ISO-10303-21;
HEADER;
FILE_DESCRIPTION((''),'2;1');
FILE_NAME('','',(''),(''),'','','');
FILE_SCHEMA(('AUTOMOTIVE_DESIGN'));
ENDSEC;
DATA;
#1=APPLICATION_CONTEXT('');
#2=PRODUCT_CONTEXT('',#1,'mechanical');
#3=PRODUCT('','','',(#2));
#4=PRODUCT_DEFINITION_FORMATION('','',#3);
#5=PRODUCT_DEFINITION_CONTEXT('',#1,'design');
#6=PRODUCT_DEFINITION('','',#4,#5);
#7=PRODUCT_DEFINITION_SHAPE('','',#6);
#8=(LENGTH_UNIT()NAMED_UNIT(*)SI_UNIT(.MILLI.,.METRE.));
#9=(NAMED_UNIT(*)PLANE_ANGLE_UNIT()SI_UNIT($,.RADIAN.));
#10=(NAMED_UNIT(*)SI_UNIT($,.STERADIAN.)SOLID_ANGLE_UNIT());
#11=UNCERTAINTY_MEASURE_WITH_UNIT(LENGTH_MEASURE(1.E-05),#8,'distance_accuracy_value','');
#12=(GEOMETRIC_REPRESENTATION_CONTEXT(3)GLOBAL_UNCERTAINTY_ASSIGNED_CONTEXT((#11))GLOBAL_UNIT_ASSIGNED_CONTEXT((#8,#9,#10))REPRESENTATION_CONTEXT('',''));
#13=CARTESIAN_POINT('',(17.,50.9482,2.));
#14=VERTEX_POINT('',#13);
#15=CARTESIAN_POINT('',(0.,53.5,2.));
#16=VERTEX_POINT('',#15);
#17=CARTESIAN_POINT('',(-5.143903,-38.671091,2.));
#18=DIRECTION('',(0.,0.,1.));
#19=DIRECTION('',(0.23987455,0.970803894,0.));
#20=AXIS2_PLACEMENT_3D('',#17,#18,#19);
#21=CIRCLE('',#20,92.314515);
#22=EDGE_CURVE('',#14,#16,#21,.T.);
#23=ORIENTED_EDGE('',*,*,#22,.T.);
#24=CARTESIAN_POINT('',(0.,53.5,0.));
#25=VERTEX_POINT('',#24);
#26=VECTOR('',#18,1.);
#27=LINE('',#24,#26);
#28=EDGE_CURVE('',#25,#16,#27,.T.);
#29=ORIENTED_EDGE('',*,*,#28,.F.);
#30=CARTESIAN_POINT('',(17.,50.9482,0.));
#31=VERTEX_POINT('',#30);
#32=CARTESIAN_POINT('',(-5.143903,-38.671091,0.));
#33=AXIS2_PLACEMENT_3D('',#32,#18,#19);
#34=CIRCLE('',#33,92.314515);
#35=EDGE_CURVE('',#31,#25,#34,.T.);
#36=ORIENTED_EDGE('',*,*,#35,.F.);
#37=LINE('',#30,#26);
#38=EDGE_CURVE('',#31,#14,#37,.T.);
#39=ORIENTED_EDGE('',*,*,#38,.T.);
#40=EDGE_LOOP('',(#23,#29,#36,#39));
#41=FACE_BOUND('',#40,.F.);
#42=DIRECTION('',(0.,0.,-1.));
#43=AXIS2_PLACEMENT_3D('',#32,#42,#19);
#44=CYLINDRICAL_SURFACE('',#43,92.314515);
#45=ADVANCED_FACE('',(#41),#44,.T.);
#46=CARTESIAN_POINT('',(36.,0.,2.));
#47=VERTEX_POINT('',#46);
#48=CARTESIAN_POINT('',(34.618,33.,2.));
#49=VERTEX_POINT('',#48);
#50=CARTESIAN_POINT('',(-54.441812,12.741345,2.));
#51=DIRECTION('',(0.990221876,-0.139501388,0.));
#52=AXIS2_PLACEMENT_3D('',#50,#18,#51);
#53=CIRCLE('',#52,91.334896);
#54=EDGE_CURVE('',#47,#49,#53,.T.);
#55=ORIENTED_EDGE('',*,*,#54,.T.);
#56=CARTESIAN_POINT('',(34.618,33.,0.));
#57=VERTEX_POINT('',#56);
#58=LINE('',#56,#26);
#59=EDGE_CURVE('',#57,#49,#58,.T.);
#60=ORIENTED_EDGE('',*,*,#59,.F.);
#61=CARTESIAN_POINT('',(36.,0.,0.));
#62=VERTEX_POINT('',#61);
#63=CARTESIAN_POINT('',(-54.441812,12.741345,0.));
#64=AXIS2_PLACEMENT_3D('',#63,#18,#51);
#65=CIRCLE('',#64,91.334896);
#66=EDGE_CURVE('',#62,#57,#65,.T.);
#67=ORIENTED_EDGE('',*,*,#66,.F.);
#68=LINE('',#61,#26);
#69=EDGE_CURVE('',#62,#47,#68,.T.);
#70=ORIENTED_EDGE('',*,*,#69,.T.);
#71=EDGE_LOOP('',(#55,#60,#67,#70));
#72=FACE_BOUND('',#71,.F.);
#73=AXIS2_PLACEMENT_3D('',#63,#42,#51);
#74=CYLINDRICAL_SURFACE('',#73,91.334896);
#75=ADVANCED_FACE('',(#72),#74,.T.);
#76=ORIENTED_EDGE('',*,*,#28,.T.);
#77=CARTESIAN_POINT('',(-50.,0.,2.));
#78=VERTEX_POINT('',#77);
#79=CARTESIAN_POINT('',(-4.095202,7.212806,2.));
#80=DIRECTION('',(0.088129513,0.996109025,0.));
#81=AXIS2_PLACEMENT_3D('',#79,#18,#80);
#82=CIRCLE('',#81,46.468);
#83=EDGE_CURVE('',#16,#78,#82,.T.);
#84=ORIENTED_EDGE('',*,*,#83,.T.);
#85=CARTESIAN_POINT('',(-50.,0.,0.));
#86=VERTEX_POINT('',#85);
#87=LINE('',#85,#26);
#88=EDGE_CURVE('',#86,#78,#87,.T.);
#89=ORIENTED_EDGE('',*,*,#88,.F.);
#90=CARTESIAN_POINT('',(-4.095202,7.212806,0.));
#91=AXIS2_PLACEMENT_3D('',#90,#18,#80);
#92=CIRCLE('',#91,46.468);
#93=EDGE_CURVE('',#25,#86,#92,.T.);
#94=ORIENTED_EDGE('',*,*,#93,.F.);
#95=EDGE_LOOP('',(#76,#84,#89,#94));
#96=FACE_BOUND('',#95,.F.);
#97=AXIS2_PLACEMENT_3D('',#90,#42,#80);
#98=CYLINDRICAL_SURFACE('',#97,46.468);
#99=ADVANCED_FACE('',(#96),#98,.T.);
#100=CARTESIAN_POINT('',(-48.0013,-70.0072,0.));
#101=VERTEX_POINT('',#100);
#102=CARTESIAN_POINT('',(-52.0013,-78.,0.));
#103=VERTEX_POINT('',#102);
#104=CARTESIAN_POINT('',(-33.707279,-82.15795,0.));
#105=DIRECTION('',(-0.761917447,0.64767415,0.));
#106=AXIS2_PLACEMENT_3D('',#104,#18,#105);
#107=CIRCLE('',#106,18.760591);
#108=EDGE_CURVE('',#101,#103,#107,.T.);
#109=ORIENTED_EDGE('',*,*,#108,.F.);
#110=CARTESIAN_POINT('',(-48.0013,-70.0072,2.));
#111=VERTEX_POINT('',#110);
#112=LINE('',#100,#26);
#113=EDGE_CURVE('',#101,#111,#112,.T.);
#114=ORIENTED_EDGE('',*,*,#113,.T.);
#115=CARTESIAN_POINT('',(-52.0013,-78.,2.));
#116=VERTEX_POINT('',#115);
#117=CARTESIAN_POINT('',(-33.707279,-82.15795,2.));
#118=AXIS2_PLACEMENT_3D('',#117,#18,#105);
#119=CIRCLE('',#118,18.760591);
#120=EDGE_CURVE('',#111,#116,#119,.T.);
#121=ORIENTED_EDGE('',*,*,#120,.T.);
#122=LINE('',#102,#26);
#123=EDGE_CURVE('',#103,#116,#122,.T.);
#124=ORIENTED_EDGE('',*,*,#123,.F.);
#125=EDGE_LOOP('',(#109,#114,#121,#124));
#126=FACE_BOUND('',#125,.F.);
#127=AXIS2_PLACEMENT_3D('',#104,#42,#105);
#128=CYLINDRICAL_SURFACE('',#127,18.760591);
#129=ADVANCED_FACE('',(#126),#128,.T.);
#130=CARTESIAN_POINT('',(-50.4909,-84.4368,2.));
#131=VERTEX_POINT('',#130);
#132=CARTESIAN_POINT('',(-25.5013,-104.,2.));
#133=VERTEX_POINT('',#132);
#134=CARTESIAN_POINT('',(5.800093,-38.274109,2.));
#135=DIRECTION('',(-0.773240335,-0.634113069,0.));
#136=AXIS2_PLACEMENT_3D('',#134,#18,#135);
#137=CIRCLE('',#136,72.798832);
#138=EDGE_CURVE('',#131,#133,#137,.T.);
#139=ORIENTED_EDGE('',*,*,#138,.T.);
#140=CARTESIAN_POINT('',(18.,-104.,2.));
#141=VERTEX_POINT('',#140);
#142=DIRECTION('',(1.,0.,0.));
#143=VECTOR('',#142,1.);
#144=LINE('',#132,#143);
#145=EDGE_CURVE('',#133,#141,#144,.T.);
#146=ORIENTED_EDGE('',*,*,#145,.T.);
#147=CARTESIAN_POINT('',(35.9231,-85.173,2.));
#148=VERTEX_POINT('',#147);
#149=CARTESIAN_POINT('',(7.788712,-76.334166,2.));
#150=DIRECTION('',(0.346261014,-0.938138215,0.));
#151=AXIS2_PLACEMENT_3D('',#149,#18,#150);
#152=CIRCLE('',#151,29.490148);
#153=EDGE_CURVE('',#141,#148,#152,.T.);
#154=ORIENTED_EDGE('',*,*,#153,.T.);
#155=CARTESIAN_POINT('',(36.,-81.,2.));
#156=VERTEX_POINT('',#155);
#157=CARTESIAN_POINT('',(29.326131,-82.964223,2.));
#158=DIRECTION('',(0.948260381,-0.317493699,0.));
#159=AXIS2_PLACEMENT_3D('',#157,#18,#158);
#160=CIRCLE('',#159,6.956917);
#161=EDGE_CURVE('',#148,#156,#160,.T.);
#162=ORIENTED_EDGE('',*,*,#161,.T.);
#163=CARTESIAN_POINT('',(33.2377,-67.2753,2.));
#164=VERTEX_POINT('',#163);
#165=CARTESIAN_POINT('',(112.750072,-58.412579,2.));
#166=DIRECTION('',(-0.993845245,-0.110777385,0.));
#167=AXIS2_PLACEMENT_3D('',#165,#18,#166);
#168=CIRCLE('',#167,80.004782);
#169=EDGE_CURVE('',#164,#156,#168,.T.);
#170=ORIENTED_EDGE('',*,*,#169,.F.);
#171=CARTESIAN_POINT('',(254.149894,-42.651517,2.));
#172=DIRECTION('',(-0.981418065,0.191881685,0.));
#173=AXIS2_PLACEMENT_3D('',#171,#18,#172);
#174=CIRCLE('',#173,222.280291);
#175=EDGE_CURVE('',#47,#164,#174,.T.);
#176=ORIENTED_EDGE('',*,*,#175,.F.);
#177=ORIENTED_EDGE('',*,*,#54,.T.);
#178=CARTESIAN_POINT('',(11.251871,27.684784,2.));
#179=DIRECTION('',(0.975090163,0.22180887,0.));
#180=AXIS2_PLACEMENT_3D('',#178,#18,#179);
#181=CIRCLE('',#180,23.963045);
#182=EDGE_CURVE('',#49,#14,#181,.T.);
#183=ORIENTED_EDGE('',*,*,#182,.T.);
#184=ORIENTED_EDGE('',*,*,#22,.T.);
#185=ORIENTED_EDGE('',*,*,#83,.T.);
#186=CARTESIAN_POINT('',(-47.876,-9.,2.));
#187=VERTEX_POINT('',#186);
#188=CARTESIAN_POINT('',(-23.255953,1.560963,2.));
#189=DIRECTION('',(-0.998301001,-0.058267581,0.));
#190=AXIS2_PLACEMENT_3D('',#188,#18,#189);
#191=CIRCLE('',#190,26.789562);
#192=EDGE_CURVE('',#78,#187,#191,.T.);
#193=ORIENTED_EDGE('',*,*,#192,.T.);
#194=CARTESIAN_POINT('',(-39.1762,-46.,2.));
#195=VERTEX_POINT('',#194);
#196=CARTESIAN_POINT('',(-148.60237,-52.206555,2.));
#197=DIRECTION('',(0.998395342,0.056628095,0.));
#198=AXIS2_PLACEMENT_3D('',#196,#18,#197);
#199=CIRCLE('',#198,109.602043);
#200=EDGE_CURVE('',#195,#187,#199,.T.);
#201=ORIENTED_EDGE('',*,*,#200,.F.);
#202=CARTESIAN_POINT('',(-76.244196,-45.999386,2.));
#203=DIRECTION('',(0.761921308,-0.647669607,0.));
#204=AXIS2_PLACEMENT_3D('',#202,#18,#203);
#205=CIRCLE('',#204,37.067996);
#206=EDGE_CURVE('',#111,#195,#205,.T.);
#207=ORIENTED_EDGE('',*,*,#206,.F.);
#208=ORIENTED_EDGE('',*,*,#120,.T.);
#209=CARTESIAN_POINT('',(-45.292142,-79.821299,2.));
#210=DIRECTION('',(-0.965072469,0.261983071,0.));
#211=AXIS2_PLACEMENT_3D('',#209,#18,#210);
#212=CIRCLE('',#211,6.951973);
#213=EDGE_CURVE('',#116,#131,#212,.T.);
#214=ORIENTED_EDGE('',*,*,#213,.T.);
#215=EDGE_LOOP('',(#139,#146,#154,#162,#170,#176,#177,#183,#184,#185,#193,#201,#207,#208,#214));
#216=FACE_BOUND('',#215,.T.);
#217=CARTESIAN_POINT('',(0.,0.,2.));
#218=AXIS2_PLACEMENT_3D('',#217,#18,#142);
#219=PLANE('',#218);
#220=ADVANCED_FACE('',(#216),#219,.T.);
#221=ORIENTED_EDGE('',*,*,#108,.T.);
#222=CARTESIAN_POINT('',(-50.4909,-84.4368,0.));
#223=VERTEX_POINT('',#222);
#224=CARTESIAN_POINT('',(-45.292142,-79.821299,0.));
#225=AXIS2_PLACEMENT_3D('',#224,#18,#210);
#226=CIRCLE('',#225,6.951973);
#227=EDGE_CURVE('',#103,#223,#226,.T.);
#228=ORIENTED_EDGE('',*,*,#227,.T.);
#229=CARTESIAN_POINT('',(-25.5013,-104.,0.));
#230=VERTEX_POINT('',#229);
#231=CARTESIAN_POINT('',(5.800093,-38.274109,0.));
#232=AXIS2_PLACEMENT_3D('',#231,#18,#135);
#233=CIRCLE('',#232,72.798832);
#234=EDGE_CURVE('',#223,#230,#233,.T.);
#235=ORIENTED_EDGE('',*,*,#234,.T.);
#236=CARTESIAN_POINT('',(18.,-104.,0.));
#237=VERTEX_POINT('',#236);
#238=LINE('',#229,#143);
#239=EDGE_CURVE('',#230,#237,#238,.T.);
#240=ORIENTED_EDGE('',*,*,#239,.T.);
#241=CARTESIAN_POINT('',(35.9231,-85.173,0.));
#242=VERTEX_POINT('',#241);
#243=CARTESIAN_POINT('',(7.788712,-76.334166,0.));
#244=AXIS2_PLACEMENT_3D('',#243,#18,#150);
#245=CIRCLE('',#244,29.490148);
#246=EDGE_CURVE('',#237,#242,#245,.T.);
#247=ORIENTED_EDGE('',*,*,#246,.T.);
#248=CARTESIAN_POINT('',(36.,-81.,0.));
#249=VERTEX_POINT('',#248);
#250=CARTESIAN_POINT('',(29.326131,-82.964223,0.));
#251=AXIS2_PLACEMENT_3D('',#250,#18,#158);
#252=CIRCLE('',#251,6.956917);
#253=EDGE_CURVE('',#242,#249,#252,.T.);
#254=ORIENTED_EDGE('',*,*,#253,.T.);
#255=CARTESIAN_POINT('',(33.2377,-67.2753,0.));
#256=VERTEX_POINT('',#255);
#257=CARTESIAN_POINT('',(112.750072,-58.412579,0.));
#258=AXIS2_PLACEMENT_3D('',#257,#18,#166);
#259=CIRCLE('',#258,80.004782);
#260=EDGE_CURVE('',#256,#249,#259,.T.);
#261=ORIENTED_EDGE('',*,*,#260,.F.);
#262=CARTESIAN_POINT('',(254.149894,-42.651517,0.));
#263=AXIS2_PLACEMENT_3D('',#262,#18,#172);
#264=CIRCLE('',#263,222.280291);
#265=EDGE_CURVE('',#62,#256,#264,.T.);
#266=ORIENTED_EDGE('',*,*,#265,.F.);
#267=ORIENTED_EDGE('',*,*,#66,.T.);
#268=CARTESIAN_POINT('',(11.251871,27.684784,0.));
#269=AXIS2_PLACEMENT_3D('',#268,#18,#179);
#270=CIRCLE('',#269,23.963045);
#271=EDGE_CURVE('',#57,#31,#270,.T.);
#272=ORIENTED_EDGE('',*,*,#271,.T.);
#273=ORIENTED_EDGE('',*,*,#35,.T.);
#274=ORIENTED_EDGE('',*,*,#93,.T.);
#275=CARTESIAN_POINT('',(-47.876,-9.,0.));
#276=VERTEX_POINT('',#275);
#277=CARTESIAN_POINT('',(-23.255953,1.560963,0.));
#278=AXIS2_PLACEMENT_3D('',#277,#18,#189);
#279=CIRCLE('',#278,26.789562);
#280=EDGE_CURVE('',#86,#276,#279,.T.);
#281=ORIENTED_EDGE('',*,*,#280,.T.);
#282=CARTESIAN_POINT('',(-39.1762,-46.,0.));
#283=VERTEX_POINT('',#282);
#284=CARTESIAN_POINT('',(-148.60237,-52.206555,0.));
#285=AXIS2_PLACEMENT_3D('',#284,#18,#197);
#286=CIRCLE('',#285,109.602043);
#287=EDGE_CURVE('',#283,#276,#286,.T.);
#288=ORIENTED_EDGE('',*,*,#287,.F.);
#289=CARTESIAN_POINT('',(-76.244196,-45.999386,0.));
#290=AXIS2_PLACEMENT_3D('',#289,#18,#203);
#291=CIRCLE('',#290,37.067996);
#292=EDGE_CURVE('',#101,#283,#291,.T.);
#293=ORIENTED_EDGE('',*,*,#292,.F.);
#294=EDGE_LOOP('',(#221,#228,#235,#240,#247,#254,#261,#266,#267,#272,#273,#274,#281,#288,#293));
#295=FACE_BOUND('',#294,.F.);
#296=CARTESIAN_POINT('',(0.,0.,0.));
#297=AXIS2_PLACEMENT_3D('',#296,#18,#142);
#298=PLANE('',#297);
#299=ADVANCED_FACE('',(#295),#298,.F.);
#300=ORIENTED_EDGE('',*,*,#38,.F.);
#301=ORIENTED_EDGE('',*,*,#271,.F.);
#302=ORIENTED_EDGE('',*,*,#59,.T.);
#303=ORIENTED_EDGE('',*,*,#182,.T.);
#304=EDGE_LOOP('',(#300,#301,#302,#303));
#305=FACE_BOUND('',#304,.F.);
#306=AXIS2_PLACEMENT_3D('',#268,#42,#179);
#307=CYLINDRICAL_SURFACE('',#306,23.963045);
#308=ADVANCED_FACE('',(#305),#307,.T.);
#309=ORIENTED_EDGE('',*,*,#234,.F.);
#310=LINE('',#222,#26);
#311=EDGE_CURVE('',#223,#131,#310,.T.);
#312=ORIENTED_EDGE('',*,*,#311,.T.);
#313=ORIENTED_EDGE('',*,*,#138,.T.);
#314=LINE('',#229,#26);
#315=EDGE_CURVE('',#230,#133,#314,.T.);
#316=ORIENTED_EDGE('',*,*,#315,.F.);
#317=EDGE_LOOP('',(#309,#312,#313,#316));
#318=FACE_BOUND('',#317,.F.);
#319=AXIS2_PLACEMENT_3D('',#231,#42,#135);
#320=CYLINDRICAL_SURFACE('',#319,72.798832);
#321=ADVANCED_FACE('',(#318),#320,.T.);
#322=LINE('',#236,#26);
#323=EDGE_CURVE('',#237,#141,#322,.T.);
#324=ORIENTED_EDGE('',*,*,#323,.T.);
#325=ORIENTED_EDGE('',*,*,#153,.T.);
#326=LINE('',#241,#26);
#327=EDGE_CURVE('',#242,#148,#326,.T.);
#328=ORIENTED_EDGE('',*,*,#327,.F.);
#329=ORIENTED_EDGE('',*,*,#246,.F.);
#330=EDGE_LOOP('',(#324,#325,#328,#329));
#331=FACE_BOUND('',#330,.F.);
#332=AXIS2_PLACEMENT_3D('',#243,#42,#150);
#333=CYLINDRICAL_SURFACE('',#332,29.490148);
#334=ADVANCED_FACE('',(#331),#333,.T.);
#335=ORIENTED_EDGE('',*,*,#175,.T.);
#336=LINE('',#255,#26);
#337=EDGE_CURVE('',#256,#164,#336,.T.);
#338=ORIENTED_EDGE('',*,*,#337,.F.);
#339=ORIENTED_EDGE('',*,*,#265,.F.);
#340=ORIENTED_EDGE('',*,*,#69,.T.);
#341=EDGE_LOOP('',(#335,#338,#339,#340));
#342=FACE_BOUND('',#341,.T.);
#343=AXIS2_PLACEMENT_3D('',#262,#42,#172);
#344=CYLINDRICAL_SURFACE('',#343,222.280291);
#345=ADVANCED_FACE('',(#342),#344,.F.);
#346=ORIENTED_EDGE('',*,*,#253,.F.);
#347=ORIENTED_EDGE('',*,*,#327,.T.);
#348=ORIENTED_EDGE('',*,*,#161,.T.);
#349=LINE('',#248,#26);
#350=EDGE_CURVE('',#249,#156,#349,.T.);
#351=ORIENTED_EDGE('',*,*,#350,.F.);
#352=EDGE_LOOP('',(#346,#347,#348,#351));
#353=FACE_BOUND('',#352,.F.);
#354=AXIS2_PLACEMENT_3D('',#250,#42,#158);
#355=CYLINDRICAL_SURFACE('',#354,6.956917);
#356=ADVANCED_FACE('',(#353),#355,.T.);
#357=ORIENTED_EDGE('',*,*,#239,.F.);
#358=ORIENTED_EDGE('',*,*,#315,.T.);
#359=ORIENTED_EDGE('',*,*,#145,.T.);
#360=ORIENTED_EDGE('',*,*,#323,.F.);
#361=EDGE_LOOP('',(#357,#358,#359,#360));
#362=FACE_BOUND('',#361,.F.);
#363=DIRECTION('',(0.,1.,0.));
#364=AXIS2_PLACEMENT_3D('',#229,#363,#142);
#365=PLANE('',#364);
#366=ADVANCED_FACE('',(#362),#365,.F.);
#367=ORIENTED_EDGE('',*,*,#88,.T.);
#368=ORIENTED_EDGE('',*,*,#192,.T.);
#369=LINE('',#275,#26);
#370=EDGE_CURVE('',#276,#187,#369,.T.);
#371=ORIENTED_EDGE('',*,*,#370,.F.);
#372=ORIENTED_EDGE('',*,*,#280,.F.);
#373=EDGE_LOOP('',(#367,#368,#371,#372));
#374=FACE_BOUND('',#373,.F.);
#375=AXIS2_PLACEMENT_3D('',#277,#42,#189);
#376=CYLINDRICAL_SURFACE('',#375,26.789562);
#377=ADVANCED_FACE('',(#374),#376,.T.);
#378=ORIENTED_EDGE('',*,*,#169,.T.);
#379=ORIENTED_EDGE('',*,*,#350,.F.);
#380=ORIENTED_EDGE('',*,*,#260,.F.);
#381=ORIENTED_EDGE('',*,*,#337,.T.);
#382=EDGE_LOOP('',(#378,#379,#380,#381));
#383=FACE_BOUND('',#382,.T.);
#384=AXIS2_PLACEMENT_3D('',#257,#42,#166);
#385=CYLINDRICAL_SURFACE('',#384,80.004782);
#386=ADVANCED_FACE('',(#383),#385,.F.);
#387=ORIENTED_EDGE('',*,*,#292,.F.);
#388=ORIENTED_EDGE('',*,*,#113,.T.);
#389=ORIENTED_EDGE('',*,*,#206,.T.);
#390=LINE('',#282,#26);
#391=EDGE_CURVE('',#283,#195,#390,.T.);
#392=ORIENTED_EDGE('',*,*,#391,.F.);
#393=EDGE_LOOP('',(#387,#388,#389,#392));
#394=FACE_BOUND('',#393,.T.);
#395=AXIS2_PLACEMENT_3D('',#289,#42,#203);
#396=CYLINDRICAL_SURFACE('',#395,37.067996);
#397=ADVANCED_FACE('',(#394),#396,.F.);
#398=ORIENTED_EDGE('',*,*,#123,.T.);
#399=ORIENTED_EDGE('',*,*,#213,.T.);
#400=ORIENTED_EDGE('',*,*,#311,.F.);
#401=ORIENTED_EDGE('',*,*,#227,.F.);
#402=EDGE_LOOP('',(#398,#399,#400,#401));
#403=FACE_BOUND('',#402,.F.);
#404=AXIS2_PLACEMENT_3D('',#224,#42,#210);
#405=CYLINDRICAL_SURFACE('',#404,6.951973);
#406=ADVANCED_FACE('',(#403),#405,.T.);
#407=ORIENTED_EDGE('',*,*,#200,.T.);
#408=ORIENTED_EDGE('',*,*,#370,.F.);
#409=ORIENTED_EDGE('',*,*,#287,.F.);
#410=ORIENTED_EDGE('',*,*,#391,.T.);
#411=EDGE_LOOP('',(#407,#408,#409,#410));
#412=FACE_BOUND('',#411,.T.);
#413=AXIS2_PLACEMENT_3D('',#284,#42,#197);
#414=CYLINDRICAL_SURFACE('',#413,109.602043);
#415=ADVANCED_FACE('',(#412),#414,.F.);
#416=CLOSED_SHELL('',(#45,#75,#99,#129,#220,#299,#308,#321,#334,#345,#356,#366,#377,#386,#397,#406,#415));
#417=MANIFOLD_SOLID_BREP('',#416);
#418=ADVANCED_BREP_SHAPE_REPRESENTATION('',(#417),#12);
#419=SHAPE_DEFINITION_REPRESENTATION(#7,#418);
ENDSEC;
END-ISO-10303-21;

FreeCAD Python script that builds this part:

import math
import FreeCAD as App
import Part
import Sketcher

V = App.Vector
Q = App.Units.Quantity

doc = App.newDocument("Part")
body = doc.addObject("PartDesign::Body", "Body")

sketch1 = body.newObject("Sketcher::SketchObject", "Sketch")
sketch1.AttachmentSupport = (doc.getObject("XY_Plane"), [""])
sketch1.MapMode = "FlatFace"
sketch1.addGeometry([
    Part.ArcOfCircle(Part.Circle(V(11.3, 27.7, 0), V(0, 0, 1), 24), math.radians(13), math.radians(76)),
    Part.ArcOfCircle(Part.Circle(V(-5.1, -38.7, 0), V(0, 0, 1), 92.3), math.radians(76.12), math.radians(86.81)),
    Part.ArcOfCircle(Part.Circle(V(-4.1, 7.2, 0), V(0, 0, 1), 46.5), math.radians(85), math.radians(189)),
    Part.ArcOfCircle(Part.Circle(V(-23.3, 1.6, 0), V(0, 0, 1), 26.8), math.radians(-176.66), math.radians(-156.78)),
    Part.ArcOfCircle(Part.Circle(V(-148.6, -52.2, 0), V(0, 0, 1), 109.6), math.radians(3.25), math.radians(23.22)),
    Part.ArcOfCircle(Part.Circle(V(-76.2, -46, 0), V(0, 0, 1), 37.1), math.radians(-40), math.radians(0)),
    Part.ArcOfCircle(Part.Circle(V(-33.7, -82.2, 0), V(0, 0, 1), 18.8), math.radians(140), math.radians(167)),
    Part.ArcOfCircle(Part.Circle(V(-45.3, -79.8, 0), V(0, 0, 1), 7), math.radians(165), math.radians(222)),
    Part.ArcOfCircle(Part.Circle(V(5.8, -38.3, 0), V(0, 0, 1), 72.8), math.radians(-141), math.radians(-115)),
    Part.LineSegment(V(-25.5, -104, 0), V(18, -104, 0)),
    Part.ArcOfCircle(Part.Circle(V(7.8, -76.3, 0), V(0, 0, 1), 29.5), math.radians(-70), math.radians(-17)),
    Part.ArcOfCircle(Part.Circle(V(29.3, -83, 0), V(0, 0, 1), 7), math.radians(-19), math.radians(16)),
    Part.ArcOfCircle(Part.Circle(V(112.7, -58.4, 0), V(0, 0, 1), 80), math.radians(-173.64), math.radians(-163.6)),
    Part.ArcOfCircle(Part.Circle(V(254.2, -42.7, 0), V(0, 0, 1), 222.3), math.radians(168.94), math.radians(186.36)),
    Part.ArcOfCircle(Part.Circle(V(-54.4, 12.7, 0), V(0, 0, 1), 91.3), math.radians(-8), math.radians(13)),
], False)
sketch1.addConstraint([
    Sketcher.Constraint("Tangent", 0, 2, 1, 1),
    Sketcher.Constraint("Coincident", 1, 2, 2, 1),
    Sketcher.Constraint("Coincident", 2, 2, 3, 1),
    Sketcher.Constraint("Tangent", 3, 2, 4, 2),
    Sketcher.Constraint("Coincident", 4, 1, 5, 2),
    Sketcher.Constraint("Tangent", 5, 1, 6, 1),
    Sketcher.Constraint("Coincident", 6, 2, 7, 1),
    Sketcher.Constraint("Coincident", 7, 2, 8, 1),
    Sketcher.Constraint("Coincident", 8, 2, 9, 1),
    Sketcher.Constraint("Coincident", 9, 2, 10, 1),
    Sketcher.Constraint("Coincident", 10, 2, 11, 1),
    Sketcher.Constraint("Tangent", 11, 2, 12, 2),
    Sketcher.Constraint("Tangent", 12, 1, 13, 2),
    Sketcher.Constraint("Coincident", 13, 1, 14, 1),
    Sketcher.Constraint("Tangent", 14, 2, 0, 1),
    Sketcher.Constraint("Horizontal", 9),
    Sketcher.Constraint("PointOnObject", 1, 2, -2),
    Sketcher.Constraint("PointOnObject", 2, 2, -1),
    Sketcher.Constraint("PointOnObject", 13, 1, -1),
    Sketcher.Constraint("Vertical", 11, 2, 13, 1),
    Sketcher.Constraint("Radius", 10, Q("29.49 mm")),
    Sketcher.Constraint("DistanceX", -1, 1, 0, 2, Q("17 mm")),
    Sketcher.Constraint("DistanceX", 2, 2, -1, 1, Q("50 mm")),
    Sketcher.Constraint("DistanceY", 3, 2, -1, 1, Q("9 mm")),
    Sketcher.Constraint("DistanceY", 4, 1, -1, 1, Q("46 mm")),
    Sketcher.Constraint("DistanceY", 6, 2, -1, 1, Q("78 mm")),
    Sketcher.Constraint("DistanceY", 8, 2, -1, 1, Q("104 mm")),
    Sketcher.Constraint("DistanceX", -1, 1, 9, 2, Q("18 mm")),
    Sketcher.Constraint("DistanceX", -1, 1, 11, 2, Q("36 mm")),
    Sketcher.Constraint("DistanceY", 11, 2, -1, 1, Q("81 mm")),
    Sketcher.Constraint("DistanceY", -1, 1, 14, 2, Q("33 mm")),
    Sketcher.Constraint("Radius", 0, Q("23.963 mm")),
    Sketcher.Constraint("Radius", 2, Q("46.468 mm")),
    Sketcher.Constraint("Radius", 6, Q("18.761 mm")),
    Sketcher.Constraint("Radius", 7, Q("6.952 mm")),
    Sketcher.Constraint("Radius", 8, Q("72.799 mm")),
    Sketcher.Constraint("Radius", 11, Q("6.957 mm")),
    Sketcher.Constraint("Radius", 12, Q("80.004 mm")),
    Sketcher.Constraint("Radius", 13, Q("222.281 mm")),
    Sketcher.Constraint("Radius", 14, Q("91.334 mm")),
    Sketcher.Constraint("DistanceX", 6, 2, 5, 1, Q("4 mm")),
    Sketcher.Constraint("DistanceY", -1, 1, 1, 2, Q("53.5 mm")),
    Sketcher.Constraint("Radius", 3, Q("26.7898 mm")),
    Sketcher.Constraint("Radius", 5, Q("37.0678 mm")),
    Sketcher.Constraint("DistanceX", 6, 2, 8, 2, Q("26.5 mm")),
    Sketcher.Constraint("Radius", 4, Q("109.602 mm")),
    Sketcher.Constraint("DistanceY", 9, 2, 10, 2, Q("18.827 mm")),
    Sketcher.Constraint("DistanceY", 5, 3, -1, 1, Q("45.9995 mm")),
    Sketcher.Constraint("DistanceY", 12, 1, -1, 1, Q("67.2753 mm")),
    Sketcher.Constraint("Radius", 1, Q("92.3145 mm")),
    Sketcher.Constraint("DistanceX", 5, 3, 1, 3, Q("71.1 mm")),
    Sketcher.Constraint("DistanceX", 7, 2, 8, 2, Q("24.9896 mm")),
    Sketcher.Constraint("DistanceY", 8, 2, 7, 2, Q("19.5632 mm")),
])
pad1 = body.newObject("PartDesign::Pad", "Pad")
pad1.Profile = sketch1
pad1.Length = 2

doc.recompute()
